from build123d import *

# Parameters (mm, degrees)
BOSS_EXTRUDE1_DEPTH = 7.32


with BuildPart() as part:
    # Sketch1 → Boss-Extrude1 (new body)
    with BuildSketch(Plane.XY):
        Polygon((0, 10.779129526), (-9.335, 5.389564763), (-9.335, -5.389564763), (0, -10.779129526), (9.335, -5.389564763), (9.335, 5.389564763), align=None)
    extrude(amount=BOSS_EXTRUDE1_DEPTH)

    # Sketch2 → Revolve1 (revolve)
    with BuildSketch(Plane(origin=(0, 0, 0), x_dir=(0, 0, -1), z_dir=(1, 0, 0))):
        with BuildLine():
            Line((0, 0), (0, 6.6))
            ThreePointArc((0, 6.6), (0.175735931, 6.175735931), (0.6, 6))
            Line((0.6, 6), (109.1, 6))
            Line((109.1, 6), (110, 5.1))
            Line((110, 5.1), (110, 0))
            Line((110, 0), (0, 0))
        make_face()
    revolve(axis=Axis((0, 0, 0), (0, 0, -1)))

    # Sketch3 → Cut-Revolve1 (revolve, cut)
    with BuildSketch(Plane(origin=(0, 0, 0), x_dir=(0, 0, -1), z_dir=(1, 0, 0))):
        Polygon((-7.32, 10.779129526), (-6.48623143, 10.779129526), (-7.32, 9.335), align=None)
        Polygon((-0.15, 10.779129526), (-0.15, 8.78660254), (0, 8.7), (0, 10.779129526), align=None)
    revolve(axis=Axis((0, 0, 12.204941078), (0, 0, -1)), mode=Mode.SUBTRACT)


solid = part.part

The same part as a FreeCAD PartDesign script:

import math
import FreeCAD as App
import Part
import Sketcher

V = App.Vector
Q = App.Units.Quantity


def add_polygon(sketch, points):
    """Adds a closed chain of lines whose ends are joined by coincident constraints."""
    first, n = sketch.GeometryCount, len(points)
    for a, b in zip(points, points[1:] + points[:1]):
        sketch.addGeometry(Part.LineSegment(App.Vector(*a, 0), App.Vector(*b, 0)), False)
    for i in range(n):
        sketch.addConstraint(Sketcher.Constraint("Coincident", first + i, 2, first + (i + 1) % n, 1))

doc = App.newDocument("Part")
body = doc.addObject("PartDesign::Body", "Body")

sketch1 = body.newObject("Sketcher::SketchObject", "Sketch")
sketch1.AttachmentSupport = (doc.getObject("XY_Plane"), [""])
sketch1.MapMode = "FlatFace"
add_polygon(sketch1, [(0, 11), (-9, 5), (-9, -5), (0, -11), (9, -5), (9, 5)])
sketch1.addConstraint([
    Sketcher.Constraint("Vertical", 1),
    Sketcher.Constraint("Vertical", 4),
    Sketcher.Constraint("Symmetric", 0, 2, 3, 2, -1, 1),
    Sketcher.Constraint("Symmetric", 2, 2, 5, 2, -1, 1),
    Sketcher.Constraint("PointOnObject", 2, 2, -2),
    Sketcher.Constraint("Parallel", 2, 5),
    Sketcher.Constraint("Horizontal", 1, 2, 3, 2),
    Sketcher.Constraint("Angle", 0, Q("-150 deg")),
    Sketcher.Constraint("DistanceX", 1, 2, 3, 2, 18.67),
    Sketcher.Constraint("DistanceY", 1, 2, 1, 1, 10.77913),
])
pad1 = body.newObject("PartDesign::Pad", "Pad")
pad1.Profile = sketch1
pad1.Length = 7.32

sketch2 = body.newObject("Sketcher::SketchObject", "Sketch001")
sketch2.AttachmentSupport = (doc.getObject("YZ_Plane"), [""])
sketch2.MapMode = "FlatFace"
sketch2.addGeometry([
    Part.LineSegment(V(6.6, 0, 0), V(0, 0, 0)),
    Part.LineSegment(V(0, 0, 0), V(0, -110, 0)),
    Part.LineSegment(V(0, -110, 0), V(5.1, -110, 0)),
    Part.LineSegment(V(5.1, -110, 0), V(6, -109.1, 0)),
    Part.LineSegment(V(6, -109.1, 0), V(6, -0.6, 0)),
    Part.ArcOfCircle(Part.Circle(V(6.6, -0.6, 0), V(0, 0, 1), 0.6), math.radians(90), math.radians(180)),
], False)
sketch2.addConstraint([
    Sketcher.Constraint("Coincident", 0, 2, 1, 1),
    Sketcher.Constraint("Coincident", 1, 2, 2, 1),
    Sketcher.Constraint("Coincident", 2, 2, 3, 1),
    Sketcher.Constraint("Coincident", 3, 2, 4, 1),
    Sketcher.Constraint("Tangent", 4, 2, 5, 2),
    Sketcher.Constraint("Tangent", 5, 1, 0, 1),
    Sketcher.Constraint("Horizontal", 0),
    Sketcher.Constraint("Vertical", 1),
    Sketcher.Constraint("Horizontal", 2),
    Sketcher.Constraint("Vertical", 4),
    Sketcher.Constraint("Coincident", 0, 2, -1, 1),
    Sketcher.Constraint("Radius", 5, 0.6),
    Sketcher.Constraint("DistanceY", 1, 2, 1, 1, 110.0),
    Sketcher.Constraint("Angle", 3, Q("45 deg")),
    Sketcher.Constraint("DistanceX", 0, 2, 0, 1, 6.6),
    Sketcher.Constraint("DistanceX", 2, 1, 2, 2, 5.1),
])
revolution = body.newObject("PartDesign::Revolution", "Revolution")
revolution.Profile = sketch2
revolution.ReferenceAxis = (sketch2, ["V_Axis"])
revolution.Angle = 360

sketch3 = body.newObject("Sketcher::SketchObject", "Sketch002")
sketch3.AttachmentSupport = (doc.getObject("YZ_Plane"), [""])
sketch3.MapMode = "FlatFace"
add_polygon(sketch3, [(10.78, 6.49), (10.78, 7.32), (9.34, 7.32)])
add_polygon(sketch3, [(10.78, 0.15), (8.79, 0.15), (8.7, 0), (10.78, 0)])
sketch3.addConstraint([
    Sketcher.Constraint("Vertical", 0),
    Sketcher.Constraint("Horizontal", 1),
    Sketcher.Constraint("Horizontal", 3),
    Sketcher.Constraint("Horizontal", 5),
    Sketcher.Constraint("Vertical", 6),
    Sketcher.Constraint("PointOnObject", 4, 2, -1),
    Sketcher.Constraint("Perpendicular", 2, 4),
    Sketcher.Constraint("Vertical", 2, 2, 5, 2),
    Sketcher.Constraint("Angle", 2, Q("-30 deg")),
    Sketcher.Constraint("DistanceY", 6, 1, 6, 2, 0.15),
    Sketcher.Constraint("DistanceX", -1, 1, 4, 2, 8.7),
    Sketcher.Constraint("DistanceY", -1, 1, 0, 2, 7.32),
    Sketcher.Constraint("DistanceX", -1, 1, 1, 2, 9.335),
    Sketcher.Constraint("DistanceX", 1, 2, 1, 1, 1.44413),
])
groove = body.newObject("PartDesign::Groove", "Groove")
groove.Profile = sketch3
groove.ReferenceAxis = (sketch3, ["V_Axis"])
groove.Angle = 360

doc.recompute()
